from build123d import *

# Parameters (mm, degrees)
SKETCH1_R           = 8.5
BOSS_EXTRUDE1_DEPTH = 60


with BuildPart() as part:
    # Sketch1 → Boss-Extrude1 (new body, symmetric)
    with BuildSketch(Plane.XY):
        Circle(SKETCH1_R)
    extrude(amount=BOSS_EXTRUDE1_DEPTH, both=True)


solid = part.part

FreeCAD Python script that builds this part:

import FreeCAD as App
import Part
import Sketcher
from FreeCAD import Vector
Q = App.Units.Quantity

doc = App.newDocument("Part")
body = doc.addObject("PartDesign::Body", "Body")

sketch1 = body.newObject("Sketcher::SketchObject", "Sketch")
sketch1.AttachmentSupport = (doc.getObject("XY_Plane"), [""])
sketch1.MapMode = "FlatFace"
sketch1.addGeometry(Part.Circle(Vector(0, 0, 0), Vector(0, 0, 1), 8.5), False)
sketch1.addConstraint([
    Sketcher.Constraint("Coincident", 0, 3, -1, 1),
    Sketcher.Constraint("Diameter", 0, Q("17 mm")),
])
pad1 = body.newObject("PartDesign::Pad", "Pad")
pad1.Profile = sketch1
pad1.Length = 120
pad1.Midplane = True

doc.recompute()
